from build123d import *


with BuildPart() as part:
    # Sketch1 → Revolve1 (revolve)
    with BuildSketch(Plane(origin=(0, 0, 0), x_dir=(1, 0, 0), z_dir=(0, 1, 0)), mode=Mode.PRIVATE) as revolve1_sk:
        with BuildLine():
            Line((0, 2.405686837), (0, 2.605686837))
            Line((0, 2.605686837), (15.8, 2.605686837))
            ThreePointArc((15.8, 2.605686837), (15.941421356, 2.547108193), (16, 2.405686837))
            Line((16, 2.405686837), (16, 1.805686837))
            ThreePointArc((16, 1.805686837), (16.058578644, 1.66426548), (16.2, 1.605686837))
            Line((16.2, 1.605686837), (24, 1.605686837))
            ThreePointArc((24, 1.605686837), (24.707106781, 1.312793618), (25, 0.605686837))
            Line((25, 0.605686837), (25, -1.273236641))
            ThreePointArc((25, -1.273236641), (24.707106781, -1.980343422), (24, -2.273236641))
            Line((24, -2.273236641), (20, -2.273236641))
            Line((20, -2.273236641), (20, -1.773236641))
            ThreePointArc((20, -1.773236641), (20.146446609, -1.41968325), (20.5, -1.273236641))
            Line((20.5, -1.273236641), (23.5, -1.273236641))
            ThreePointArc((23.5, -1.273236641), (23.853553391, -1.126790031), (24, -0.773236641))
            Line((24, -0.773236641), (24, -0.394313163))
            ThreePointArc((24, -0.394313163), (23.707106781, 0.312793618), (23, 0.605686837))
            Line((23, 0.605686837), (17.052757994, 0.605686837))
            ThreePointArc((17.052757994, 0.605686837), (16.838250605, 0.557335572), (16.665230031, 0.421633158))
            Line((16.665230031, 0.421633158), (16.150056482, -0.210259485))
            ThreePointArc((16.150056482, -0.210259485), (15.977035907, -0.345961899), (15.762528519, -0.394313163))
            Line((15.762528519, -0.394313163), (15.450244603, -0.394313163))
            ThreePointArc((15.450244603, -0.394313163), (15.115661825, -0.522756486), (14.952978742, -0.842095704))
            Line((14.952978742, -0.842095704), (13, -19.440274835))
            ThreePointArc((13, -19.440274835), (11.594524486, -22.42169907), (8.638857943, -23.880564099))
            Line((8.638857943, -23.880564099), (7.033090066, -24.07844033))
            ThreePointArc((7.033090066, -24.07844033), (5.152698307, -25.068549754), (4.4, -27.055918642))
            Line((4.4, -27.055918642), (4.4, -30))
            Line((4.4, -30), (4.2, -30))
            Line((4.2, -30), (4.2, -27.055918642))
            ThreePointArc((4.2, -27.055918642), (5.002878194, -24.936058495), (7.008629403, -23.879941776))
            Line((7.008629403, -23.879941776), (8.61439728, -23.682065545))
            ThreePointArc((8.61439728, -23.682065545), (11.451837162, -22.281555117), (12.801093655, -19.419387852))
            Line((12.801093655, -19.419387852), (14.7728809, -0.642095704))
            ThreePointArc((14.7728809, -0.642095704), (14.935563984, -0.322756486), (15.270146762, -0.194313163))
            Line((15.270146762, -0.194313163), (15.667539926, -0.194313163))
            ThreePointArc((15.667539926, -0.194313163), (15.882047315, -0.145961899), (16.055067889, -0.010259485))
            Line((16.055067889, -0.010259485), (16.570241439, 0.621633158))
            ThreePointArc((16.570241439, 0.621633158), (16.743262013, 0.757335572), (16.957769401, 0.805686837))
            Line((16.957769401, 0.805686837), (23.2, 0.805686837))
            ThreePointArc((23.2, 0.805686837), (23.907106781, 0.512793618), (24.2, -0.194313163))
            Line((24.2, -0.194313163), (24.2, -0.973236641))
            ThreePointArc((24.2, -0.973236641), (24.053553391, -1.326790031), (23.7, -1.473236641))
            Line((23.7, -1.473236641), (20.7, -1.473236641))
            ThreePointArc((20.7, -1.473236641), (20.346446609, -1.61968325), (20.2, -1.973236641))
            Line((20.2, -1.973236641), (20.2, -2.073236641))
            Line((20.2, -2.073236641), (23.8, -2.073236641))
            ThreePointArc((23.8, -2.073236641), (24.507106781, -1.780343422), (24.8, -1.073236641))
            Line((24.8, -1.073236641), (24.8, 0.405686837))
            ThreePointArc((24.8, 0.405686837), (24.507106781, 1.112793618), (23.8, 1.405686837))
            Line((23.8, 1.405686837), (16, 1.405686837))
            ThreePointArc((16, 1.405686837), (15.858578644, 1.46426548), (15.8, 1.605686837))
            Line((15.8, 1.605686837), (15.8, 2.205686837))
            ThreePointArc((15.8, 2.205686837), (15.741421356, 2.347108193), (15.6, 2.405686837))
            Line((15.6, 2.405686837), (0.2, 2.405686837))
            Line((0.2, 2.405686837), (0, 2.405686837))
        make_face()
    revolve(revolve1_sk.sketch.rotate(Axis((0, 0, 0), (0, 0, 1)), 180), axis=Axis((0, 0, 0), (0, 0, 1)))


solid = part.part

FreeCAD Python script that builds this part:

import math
import FreeCAD as App
import Part
import Sketcher
from FreeCAD import Vector

doc = App.newDocument("Part")
body = doc.addObject("PartDesign::Body", "Body")

sketch1 = body.newObject("Sketcher::SketchObject", "Sketch")
sketch1.AttachmentSupport = (doc.getObject("XZ_Plane"), [""])
sketch1.MapMode = "FlatFace"
sketch1.addGeometry([
    Part.LineSegment(Vector(0, -2.605687, 0), Vector(0, -2.405687, 0)),
    Part.LineSegment(Vector(0, -2.405687, 0), Vector(15.6, -2.405687, 0)),
    Part.ArcOfCircle(Part.Circle(Vector(15.6, -2.205687, 0), Vector(0, 0, 1), 0.2), math.radians(-90), math.radians(0)),
    Part.LineSegment(Vector(15.8, -2.205687, 0), Vector(15.8, -1.605687, 0)),
    Part.ArcOfCircle(Part.Circle(Vector(16, -1.605687, 0), Vector(0, 0, 1), 0.2), math.radians(90), math.radians(180)),
    Part.LineSegment(Vector(16, -1.405687, 0), Vector(23.8, -1.405687, 0)),
    Part.ArcOfCircle(Part.Circle(Vector(23.8, -0.405687, 0), Vector(0, 0, 1), 1), math.radians(-90), math.radians(0)),
    Part.LineSegment(Vector(24.8, -0.405687, 0), Vector(24.8, 1.073237, 0)),
    Part.ArcOfCircle(Part.Circle(Vector(23.8, 1.073237, 0), Vector(0, 0, 1), 1), math.radians(0), math.radians(90)),
    Part.LineSegment(Vector(23.8, 2.073237, 0), Vector(20.2, 2.073237, 0)),
    Part.LineSegment(Vector(20.2, 2.073237, 0), Vector(20.2, 1.973237, 0)),
    Part.ArcOfCircle(Part.Circle(Vector(20.7, 1.973237, 0), Vector(0, 0, 1), 0.5), math.radians(180), math.radians(270)),
    Part.LineSegment(Vector(20.7, 1.473237, 0), Vector(23.7, 1.473237, 0)),
    Part.ArcOfCircle(Part.Circle(Vector(23.7, 0.973237, 0), Vector(0, 0, 1), 0.5), math.radians(0), math.radians(90)),
    Part.LineSegment(Vector(24.2, 0.973237, 0), Vector(24.2, 0.194313, 0)),
    Part.ArcOfCircle(Part.Circle(Vector(23.2, 0.194313, 0), Vector(0, 0, 1), 1), math.radians(-90), math.radians(0)),
    Part.LineSegment(Vector(23.2, -0.805687, 0), Vector(16.957769, -0.805687, 0)),
    Part.ArcOfCircle(Part.Circle(Vector(16.957769, -0.305687, 0), Vector(0, 0, 1), 0.5), math.radians(-140.810103), math.radians(-90)),
    Part.LineSegment(Vector(16.570241, -0.621633, 0), Vector(16.055068, 0.010259, 0)),
    Part.ArcOfCircle(Part.Circle(Vector(15.66754, -0.305687, 0), Vector(0, 0, 1), 0.5), math.radians(39.189897), math.radians(90)),
    Part.LineSegment(Vector(15.66754, 0.194313, 0), Vector(15.270147, 0.194313, 0)),
    Part.ArcOfCircle(Part.Circle(Vector(15.270147, 0.694313, 0), Vector(0, 0, 1), 0.5), math.radians(-174.005389), math.radians(-90)),
    Part.LineSegment(Vector(14.772881, 0.642096, 0), Vector(12.801094, 19.419388, 0)),
    Part.ArcOfCircle(Part.Circle(Vector(8.027341, 18.9181, 0), Vector(0, 0, 1), 4.8), math.radians(5.994611), math.radians(82.974948)),
    Part.LineSegment(Vector(8.614397, 23.682066, 0), Vector(7.008629, 23.879942, 0)),
    Part.ArcOfCircle(Part.Circle(Vector(7.4, 27.055919, 0), Vector(0, 0, 1), 3.2), math.radians(-180), math.radians(-97.025052)),
    Part.LineSegment(Vector(4.2, 27.055919, 0), Vector(4.2, 30, 0)),
    Part.LineSegment(Vector(4.2, 30, 0), Vector(4.4, 30, 0)),
    Part.LineSegment(Vector(4.4, 30, 0), Vector(4.4, 27.055919, 0)),
    Part.ArcOfCircle(Part.Circle(Vector(7.4, 27.055919, 0), Vector(0, 0, 1), 3), math.radians(-180), math.radians(-97.025052)),
    Part.LineSegment(Vector(7.03309, 24.07844, 0), Vector(8.638858, 23.880564, 0)),
    Part.ArcOfCircle(Part.Circle(Vector(8.027341, 18.9181, 0), Vector(0, 0, 1), 5), math.radians(5.994611), math.radians(82.974948)),
    Part.LineSegment(Vector(13, 19.440275, 0), Vector(14.952979, 0.842096, 0)),
    Part.ArcOfCircle(Part.Circle(Vector(15.450245, 0.894313, 0), Vector(0, 0, 1), 0.5), math.radians(-174.005389), math.radians(-90)),
    Part.LineSegment(Vector(15.450245, 0.394313, 0), Vector(15.762529, 0.394313, 0)),
    Part.ArcOfCircle(Part.Circle(Vector(15.762529, -0.105687, 0), Vector(0, 0, 1), 0.5), math.radians(39.189897), math.radians(90)),
    Part.LineSegment(Vector(16.150056, 0.210259, 0), Vector(16.66523, -0.421633, 0)),
    Part.ArcOfCircle(Part.Circle(Vector(17.052758, -0.105687, 0), Vector(0, 0, 1), 0.5), math.radians(-140.810103), math.radians(-90)),
    Part.LineSegment(Vector(17.052758, -0.605687, 0), Vector(23, -0.605687, 0)),
    Part.ArcOfCircle(Part.Circle(Vector(23, 0.394313, 0), Vector(0, 0, 1), 1), math.radians(-90), math.radians(0)),
    Part.LineSegment(Vector(24, 0.394313, 0), Vector(24, 0.773237, 0)),
    Part.ArcOfCircle(Part.Circle(Vector(23.5, 0.773237, 0), Vector(0, 0, 1), 0.5), math.radians(0), math.radians(90)),
    Part.LineSegment(Vector(23.5, 1.273237, 0), Vector(20.5, 1.273237, 0)),
    Part.ArcOfCircle(Part.Circle(Vector(20.5, 1.773237, 0), Vector(0, 0, 1), 0.5), math.radians(180), math.radians(270)),
    Part.LineSegment(Vector(20, 1.773237, 0), Vector(20, 2.273237, 0)),
    Part.LineSegment(Vector(20, 2.273237, 0), Vector(24, 2.273237, 0)),
    Part.ArcOfCircle(Part.Circle(Vector(24, 1.273237, 0), Vector(0, 0, 1), 1), math.radians(0), math.radians(90)),
    Part.LineSegment(Vector(25, 1.273237, 0), Vector(25, -0.605687, 0)),
    Part.ArcOfCircle(Part.Circle(Vector(24, -0.605687, 0), Vector(0, 0, 1), 1), math.radians(-90), math.radians(0)),
    Part.LineSegment(Vector(24, -1.605687, 0), Vector(16.2, -1.605687, 0)),
    Part.ArcOfCircle(Part.Circle(Vector(16.2, -1.805687, 0), Vector(0, 0, 1), 0.2), math.radians(90), math.radians(180)),
    Part.LineSegment(Vector(16, -1.805687, 0), Vector(16, -2.405687, 0)),
    Part.ArcOfCircle(Part.Circle(Vector(15.8, -2.405687, 0), Vector(0, 0, 1), 0.2), math.radians(-90), math.radians(0)),
    Part.LineSegment(Vector(15.8, -2.605687, 0), Vector(0, -2.605687, 0)),
], False)
sketch1.addConstraint([
    Sketcher.Constraint("Coincident", 0, 2, 1, 1),
    Sketcher.Constraint("Coincident", 1, 2, 2, 1),
    Sketcher.Constraint("Coincident", 2, 2, 3, 1),
    Sketcher.Constraint("Coincident", 3, 2, 4, 2),
    Sketcher.Constraint("Coincident", 4, 1, 5, 1),
    Sketcher.Constraint("Coincident", 5, 2, 6, 1),
    Sketcher.Constraint("Coincident", 6, 2, 7, 1),
    Sketcher.Constraint("Coincident", 7, 2, 8, 1),
    Sketcher.Constraint("Coincident", 8, 2, 9, 1),
    Sketcher.Constraint("Coincident", 9, 2, 10, 1),
    Sketcher.Constraint("Coincident", 10, 2, 11, 1),
    Sketcher.Constraint("Coincident", 11, 2, 12, 1),
    Sketcher.Constraint("Coincident", 12, 2, 13, 2),
    Sketcher.Constraint("Coincident", 13, 1, 14, 1),
    Sketcher.Constraint("Coincident", 14, 2, 15, 2),
    Sketcher.Constraint("Coincident", 15, 1, 16, 1),
    Sketcher.Constraint("Coincident", 16, 2, 17, 2),
    Sketcher.Constraint("Coincident", 17, 1, 18, 1),
    Sketcher.Constraint("Coincident", 18, 2, 19, 1),
    Sketcher.Constraint("Coincident", 19, 2, 20, 1),
    Sketcher.Constraint("Coincident", 20, 2, 21, 2),
    Sketcher.Constraint("Coincident", 21, 1, 22, 1),
    Sketcher.Constraint("Coincident", 22, 2, 23, 1),
    Sketcher.Constraint("Coincident", 23, 2, 24, 1),
    Sketcher.Constraint("Coincident", 24, 2, 25, 2),
    Sketcher.Constraint("Coincident", 25, 1, 26, 1),
    Sketcher.Constraint("Coincident", 26, 2, 27, 1),
    Sketcher.Constraint("Coincident", 27, 2, 28, 1),
    Sketcher.Constraint("Coincident", 28, 2, 29, 1),
    Sketcher.Constraint("Coincident", 29, 2, 30, 1),
    Sketcher.Constraint("Coincident", 30, 2, 31, 2),
    Sketcher.Constraint("Coincident", 31, 1, 32, 1),
    Sketcher.Constraint("Coincident", 32, 2, 33, 1),
    Sketcher.Constraint("Coincident", 33, 2, 34, 1),
    Sketcher.Constraint("Coincident", 34, 2, 35, 2),
    Sketcher.Constraint("Coincident", 35, 1, 36, 1),
    Sketcher.Constraint("Coincident", 36, 2, 37, 1),
    Sketcher.Constraint("Coincident", 37, 2, 38, 1),
    Sketcher.Constraint("Coincident", 38, 2, 39, 1),
    Sketcher.Constraint("Coincident", 39, 2, 40, 1),
    Sketcher.Constraint("Coincident", 40, 2, 41, 1),
    Sketcher.Constraint("Coincident", 41, 2, 42, 1),
    Sketcher.Constraint("Coincident", 42, 2, 43, 2),
    Sketcher.Constraint("Coincident", 43, 1, 44, 1),
    Sketcher.Constraint("Coincident", 44, 2, 45, 1),
    Sketcher.Constraint("Coincident", 45, 2, 46, 2),
    Sketcher.Constraint("Coincident", 46, 1, 47, 1),
    Sketcher.Constraint("Coincident", 47, 2, 48, 2),
    Sketcher.Constraint("Coincident", 48, 1, 49, 1),
    Sketcher.Constraint("Coincident", 49, 2, 50, 1),
    Sketcher.Constraint("Coincident", 50, 2, 51, 1),
    Sketcher.Constraint("Coincident", 51, 2, 52, 2),
    Sketcher.Constraint("Coincident", 52, 1, 53, 1),
    Sketcher.Constraint("Coincident", 53, 2, 0, 1),
    Sketcher.Constraint("Vertical", 0),
    Sketcher.Constraint("Horizontal", 1),
    Sketcher.Constraint("Vertical", 3),
    Sketcher.Constraint("Horizontal", 5),
    Sketcher.Constraint("Vertical", 7),
    Sketcher.Constraint("Horizontal", 9),
    Sketcher.Constraint("Vertical", 10),
    Sketcher.Constraint("Horizontal", 12),
    Sketcher.Constraint("Vertical", 14),
    Sketcher.Constraint("Horizontal", 16),
    Sketcher.Constraint("Horizontal", 20),
    Sketcher.Constraint("Vertical", 26),
    Sketcher.Constraint("Horizontal", 27),
    Sketcher.Constraint("Vertical", 28),
    Sketcher.Constraint("Horizontal", 34),
    Sketcher.Constraint("Horizontal", 38),
    Sketcher.Constraint("Vertical", 40),
    Sketcher.Constraint("Horizontal", 42),
    Sketcher.Constraint("Vertical", 44),
    Sketcher.Constraint("Horizontal", 45),
    Sketcher.Constraint("Vertical", 47),
    Sketcher.Constraint("Horizontal", 49),
    Sketcher.Constraint("Vertical", 51),
    Sketcher.Constraint("Horizontal", 53),
    Sketcher.Constraint("Coincident", 29, 3, 25, 3),
    Sketcher.Constraint("Coincident", 31, 3, 23, 3),
    Sketcher.Constraint("PointOnObject", 0, 2, -2),
    Sketcher.Constraint("Radius", 6, 1.0),
    Sketcher.Constraint("Radius", 8, 1.0),
    Sketcher.Constraint("Radius", 15, 1.0),
    Sketcher.Constraint("Radius", 29, 3.0),
    Sketcher.Constraint("Radius", 31, 5.0),
    Sketcher.Constraint("Radius", 39, 1.0),
    Sketcher.Constraint("Radius", 46, 1.0),
    Sketcher.Constraint("Radius", 48, 1.0),
    Sketcher.Constraint("Radius", 2, 0.2),
    Sketcher.Constraint("Radius", 4, 0.2),
    Sketcher.Constraint("Radius", 11, 0.5),
    Sketcher.Constraint("Radius", 13, 0.5),
    Sketcher.Constraint("Radius", 17, 0.5),
    Sketcher.Constraint("Radius", 19, 0.5),
    Sketcher.Constraint("Radius", 21, 0.5),
    Sketcher.Constraint("Radius", 23, 4.8),
    Sketcher.Constraint("Radius", 25, 3.2),
    Sketcher.Constraint("Radius", 33, 0.5),
    Sketcher.Constraint("Radius", 35, 0.5),
    Sketcher.Constraint("Radius", 37, 0.5),
    Sketcher.Constraint("Radius", 41, 0.5),
    Sketcher.Constraint("Radius", 43, 0.5),
    Sketcher.Constraint("Radius", 50, 0.2),
    Sketcher.Constraint("Radius", 52, 0.2),
    Sketcher.Constraint("DistanceX", 12, 1, 12, 2, 3.0),
    Sketcher.Constraint("DistanceX", 42, 2, 42, 1, 3.0),
    Sketcher.Constraint("DistanceX", 45, 1, 45, 2, 4.0),
    Sketcher.Constraint("DistanceX", 1, 1, 1, 2, 15.6),
    Sketcher.Constraint("DistanceX", 5, 1, 5, 2, 7.8),
    Sketcher.Constraint("DistanceX", 9, 2, 9, 1, 3.6),
    Sketcher.Constraint("DistanceX", 49, 2, 49, 1, 7.8),
    Sketcher.Constraint("DistanceX", 53, 2, 53, 1, 15.8),
    Sketcher.Constraint("DistanceY", 0, 1, 0, 2, 0.2),
    Sketcher.Constraint("DistanceY", 3, 1, 3, 2, 0.6),
    Sketcher.Constraint("DistanceY", 10, 2, 10, 1, 0.1),
    Sketcher.Constraint("DistanceY", 44, 1, 44, 2, 0.5),
    Sketcher.Constraint("DistanceY", 51, 2, 51, 1, 0.6),
    Sketcher.Constraint("DistanceX", -1, 1, 4, 3, 16.0),
    Sketcher.Constraint("DistanceX", -1, 1, 39, 3, 23.0),
    Sketcher.Constraint("DistanceX", -1, 1, 46, 3, 24.0),
    Sketcher.Constraint("DistanceX", -1, 1, 4, 1, 16.0),
    Sketcher.Constraint("DistanceY", -1, 1, 26, 2, 30.0),
    Sketcher.Constraint("DistanceX", -1, 1, 31, 1, 13.0),
    Sketcher.Constraint("DistanceX", -1, 1, 38, 2, 23.0),
    Sketcher.Constraint("DistanceX", -1, 1, 43, 1, 20.0),
    Sketcher.Constraint("DistanceX", -1, 1, 48, 1, 24.0),
    Sketcher.Constraint("DistanceX", -1, 1, 50, 2, 16.0),
    Sketcher.Constraint("DistanceX", -1, 1, 6, 3, 23.8),
    Sketcher.Constraint("DistanceX", -1, 1, 11, 3, 20.7),
    Sketcher.Constraint("DistanceX", -1, 1, 13, 3, 23.7),
    Sketcher.Constraint("DistanceX", -1, 1, 25, 3, 7.4),
    Sketcher.Constraint("DistanceX", -1, 1, 11, 2, 20.7),
    Sketcher.Constraint("DistanceX", -1, 1, 15, 1, 23.2),
    Sketcher.Constraint("DistanceX", -1, 1, 41, 2, 23.5),
    Sketcher.Constraint("DistanceX", 16, 2, 16, 1, 6.242231),
    Sketcher.Constraint("DistanceY", 26, 1, 26, 2, 2.944081),
    Sketcher.Constraint("DistanceY", 28, 2, 28, 1, 2.944081),
    Sketcher.Constraint("DistanceY", -1, 1, 23, 3, 18.9181),
    Sketcher.Constraint("Distance", 32, 18.700438),
    Sketcher.Constraint("DistanceX", 20, 2, 20, 1, 0.397393),
    Sketcher.Constraint("DistanceX", 34, 1, 34, 2, 0.312284),
    Sketcher.Constraint("DistanceX", 38, 1, 38, 2, 5.947242),
    Sketcher.Constraint("DistanceY", 7, 1, 7, 2, 1.478923),
    Sketcher.Constraint("DistanceY", 14, 2, 14, 1, 0.778923),
    Sketcher.Constraint("DistanceY", 40, 1, 40, 2, 0.378923),
    Sketcher.Constraint("DistanceY", 47, 2, 47, 1, 1.878923),
    Sketcher.Constraint("DistanceX", -1, 1, 17, 3, 16.957769),
    Sketcher.Constraint("DistanceX", -1, 1, 19, 3, 15.66754),
    Sketcher.Constraint("DistanceX", -1, 1, 23, 3, 8.027341),
    Sketcher.Constraint("DistanceY", -1, 1, 25, 3, 27.055919),
    Sketcher.Constraint("DistanceX", -1, 1, 35, 3, 15.762529),
    Sketcher.Constraint("DistanceX", -1, 1, 17, 1, 16.570241),
    Sketcher.Constraint("DistanceY", -1, 1, 18, 2, 0.010259),
    Sketcher.Constraint("DistanceX", -1, 1, 19, 2, 15.66754),
    Sketcher.Constraint("DistanceX", -1, 1, 21, 1, 14.772881),
    Sketcher.Constraint("DistanceX", -1, 1, 24, 2, 7.008629),
    Sketcher.Constraint("DistanceX", -1, 1, 29, 2, 7.03309),
    Sketcher.Constraint("DistanceX", -1, 1, 32, 2, 14.952979),
    Sketcher.Constraint("DistanceX", -1, 1, 34, 2, 15.762529),
    Sketcher.Constraint("DistanceY", -1, 1, 35, 1, 0.210259),
    Sketcher.Constraint("DistanceX", -1, 1, 36, 2, 16.66523),
    Sketcher.Constraint("Distance", 18, 0.815287),
    Sketcher.Constraint("Distance", 22, 18.880536),
    Sketcher.Constraint("Distance", 24, 1.617914),
    Sketcher.Constraint("Distance", 30, 1.617914),
    Sketcher.Constraint("Distance", 36, 0.815287),
    Sketcher.Constraint("DistanceY", 2, 3, -1, 1, 2.205687),
    Sketcher.Constraint("DistanceY", 4, 3, -1, 1, 1.605687),
    Sketcher.Constraint("DistanceY", -1, 1, 8, 3, 1.073237),
    Sketcher.Constraint("DistanceY", -1, 1, 11, 3, 1.973237),
    Sketcher.Constraint("DistanceY", -1, 1, 15, 3, 0.194313),
    Sketcher.Constraint("DistanceX", -1, 1, 21, 3, 15.270147),
    Sketcher.Constraint("DistanceX", -1, 1, 33, 3, 15.450245),
    Sketcher.Constraint("DistanceX", -1, 1, 37, 3, 17.052758),
    Sketcher.Constraint("DistanceY", -1, 1, 41, 3, 0.773237),
    Sketcher.Constraint("DistanceY", -1, 1, 46, 3, 1.273237),
    Sketcher.Constraint("DistanceY", 48, 3, -1, 1, 0.605687),
    Sketcher.Constraint("DistanceY", 2, 2, -1, 1, 2.205687),
    Sketcher.Constraint("DistanceY", 6, 2, -1, 1, 0.405687),
    Sketcher.Constraint("DistanceY", -1, 1, 13, 1, 0.973237),
    Sketcher.Constraint("DistanceY", -1, 1, 39, 2, 0.394313),
    Sketcher.Constraint("DistanceY", -1, 1, 46, 1, 1.273237),
    Sketcher.Constraint("DistanceY", 50, 2, -1, 1, 1.805687),
])
revolution = body.newObject("PartDesign::Revolution", "Revolution")
revolution.Profile = sketch1
revolution.ReferenceAxis = (sketch1, ["V_Axis"])
revolution.Angle = 360

doc.recompute()
